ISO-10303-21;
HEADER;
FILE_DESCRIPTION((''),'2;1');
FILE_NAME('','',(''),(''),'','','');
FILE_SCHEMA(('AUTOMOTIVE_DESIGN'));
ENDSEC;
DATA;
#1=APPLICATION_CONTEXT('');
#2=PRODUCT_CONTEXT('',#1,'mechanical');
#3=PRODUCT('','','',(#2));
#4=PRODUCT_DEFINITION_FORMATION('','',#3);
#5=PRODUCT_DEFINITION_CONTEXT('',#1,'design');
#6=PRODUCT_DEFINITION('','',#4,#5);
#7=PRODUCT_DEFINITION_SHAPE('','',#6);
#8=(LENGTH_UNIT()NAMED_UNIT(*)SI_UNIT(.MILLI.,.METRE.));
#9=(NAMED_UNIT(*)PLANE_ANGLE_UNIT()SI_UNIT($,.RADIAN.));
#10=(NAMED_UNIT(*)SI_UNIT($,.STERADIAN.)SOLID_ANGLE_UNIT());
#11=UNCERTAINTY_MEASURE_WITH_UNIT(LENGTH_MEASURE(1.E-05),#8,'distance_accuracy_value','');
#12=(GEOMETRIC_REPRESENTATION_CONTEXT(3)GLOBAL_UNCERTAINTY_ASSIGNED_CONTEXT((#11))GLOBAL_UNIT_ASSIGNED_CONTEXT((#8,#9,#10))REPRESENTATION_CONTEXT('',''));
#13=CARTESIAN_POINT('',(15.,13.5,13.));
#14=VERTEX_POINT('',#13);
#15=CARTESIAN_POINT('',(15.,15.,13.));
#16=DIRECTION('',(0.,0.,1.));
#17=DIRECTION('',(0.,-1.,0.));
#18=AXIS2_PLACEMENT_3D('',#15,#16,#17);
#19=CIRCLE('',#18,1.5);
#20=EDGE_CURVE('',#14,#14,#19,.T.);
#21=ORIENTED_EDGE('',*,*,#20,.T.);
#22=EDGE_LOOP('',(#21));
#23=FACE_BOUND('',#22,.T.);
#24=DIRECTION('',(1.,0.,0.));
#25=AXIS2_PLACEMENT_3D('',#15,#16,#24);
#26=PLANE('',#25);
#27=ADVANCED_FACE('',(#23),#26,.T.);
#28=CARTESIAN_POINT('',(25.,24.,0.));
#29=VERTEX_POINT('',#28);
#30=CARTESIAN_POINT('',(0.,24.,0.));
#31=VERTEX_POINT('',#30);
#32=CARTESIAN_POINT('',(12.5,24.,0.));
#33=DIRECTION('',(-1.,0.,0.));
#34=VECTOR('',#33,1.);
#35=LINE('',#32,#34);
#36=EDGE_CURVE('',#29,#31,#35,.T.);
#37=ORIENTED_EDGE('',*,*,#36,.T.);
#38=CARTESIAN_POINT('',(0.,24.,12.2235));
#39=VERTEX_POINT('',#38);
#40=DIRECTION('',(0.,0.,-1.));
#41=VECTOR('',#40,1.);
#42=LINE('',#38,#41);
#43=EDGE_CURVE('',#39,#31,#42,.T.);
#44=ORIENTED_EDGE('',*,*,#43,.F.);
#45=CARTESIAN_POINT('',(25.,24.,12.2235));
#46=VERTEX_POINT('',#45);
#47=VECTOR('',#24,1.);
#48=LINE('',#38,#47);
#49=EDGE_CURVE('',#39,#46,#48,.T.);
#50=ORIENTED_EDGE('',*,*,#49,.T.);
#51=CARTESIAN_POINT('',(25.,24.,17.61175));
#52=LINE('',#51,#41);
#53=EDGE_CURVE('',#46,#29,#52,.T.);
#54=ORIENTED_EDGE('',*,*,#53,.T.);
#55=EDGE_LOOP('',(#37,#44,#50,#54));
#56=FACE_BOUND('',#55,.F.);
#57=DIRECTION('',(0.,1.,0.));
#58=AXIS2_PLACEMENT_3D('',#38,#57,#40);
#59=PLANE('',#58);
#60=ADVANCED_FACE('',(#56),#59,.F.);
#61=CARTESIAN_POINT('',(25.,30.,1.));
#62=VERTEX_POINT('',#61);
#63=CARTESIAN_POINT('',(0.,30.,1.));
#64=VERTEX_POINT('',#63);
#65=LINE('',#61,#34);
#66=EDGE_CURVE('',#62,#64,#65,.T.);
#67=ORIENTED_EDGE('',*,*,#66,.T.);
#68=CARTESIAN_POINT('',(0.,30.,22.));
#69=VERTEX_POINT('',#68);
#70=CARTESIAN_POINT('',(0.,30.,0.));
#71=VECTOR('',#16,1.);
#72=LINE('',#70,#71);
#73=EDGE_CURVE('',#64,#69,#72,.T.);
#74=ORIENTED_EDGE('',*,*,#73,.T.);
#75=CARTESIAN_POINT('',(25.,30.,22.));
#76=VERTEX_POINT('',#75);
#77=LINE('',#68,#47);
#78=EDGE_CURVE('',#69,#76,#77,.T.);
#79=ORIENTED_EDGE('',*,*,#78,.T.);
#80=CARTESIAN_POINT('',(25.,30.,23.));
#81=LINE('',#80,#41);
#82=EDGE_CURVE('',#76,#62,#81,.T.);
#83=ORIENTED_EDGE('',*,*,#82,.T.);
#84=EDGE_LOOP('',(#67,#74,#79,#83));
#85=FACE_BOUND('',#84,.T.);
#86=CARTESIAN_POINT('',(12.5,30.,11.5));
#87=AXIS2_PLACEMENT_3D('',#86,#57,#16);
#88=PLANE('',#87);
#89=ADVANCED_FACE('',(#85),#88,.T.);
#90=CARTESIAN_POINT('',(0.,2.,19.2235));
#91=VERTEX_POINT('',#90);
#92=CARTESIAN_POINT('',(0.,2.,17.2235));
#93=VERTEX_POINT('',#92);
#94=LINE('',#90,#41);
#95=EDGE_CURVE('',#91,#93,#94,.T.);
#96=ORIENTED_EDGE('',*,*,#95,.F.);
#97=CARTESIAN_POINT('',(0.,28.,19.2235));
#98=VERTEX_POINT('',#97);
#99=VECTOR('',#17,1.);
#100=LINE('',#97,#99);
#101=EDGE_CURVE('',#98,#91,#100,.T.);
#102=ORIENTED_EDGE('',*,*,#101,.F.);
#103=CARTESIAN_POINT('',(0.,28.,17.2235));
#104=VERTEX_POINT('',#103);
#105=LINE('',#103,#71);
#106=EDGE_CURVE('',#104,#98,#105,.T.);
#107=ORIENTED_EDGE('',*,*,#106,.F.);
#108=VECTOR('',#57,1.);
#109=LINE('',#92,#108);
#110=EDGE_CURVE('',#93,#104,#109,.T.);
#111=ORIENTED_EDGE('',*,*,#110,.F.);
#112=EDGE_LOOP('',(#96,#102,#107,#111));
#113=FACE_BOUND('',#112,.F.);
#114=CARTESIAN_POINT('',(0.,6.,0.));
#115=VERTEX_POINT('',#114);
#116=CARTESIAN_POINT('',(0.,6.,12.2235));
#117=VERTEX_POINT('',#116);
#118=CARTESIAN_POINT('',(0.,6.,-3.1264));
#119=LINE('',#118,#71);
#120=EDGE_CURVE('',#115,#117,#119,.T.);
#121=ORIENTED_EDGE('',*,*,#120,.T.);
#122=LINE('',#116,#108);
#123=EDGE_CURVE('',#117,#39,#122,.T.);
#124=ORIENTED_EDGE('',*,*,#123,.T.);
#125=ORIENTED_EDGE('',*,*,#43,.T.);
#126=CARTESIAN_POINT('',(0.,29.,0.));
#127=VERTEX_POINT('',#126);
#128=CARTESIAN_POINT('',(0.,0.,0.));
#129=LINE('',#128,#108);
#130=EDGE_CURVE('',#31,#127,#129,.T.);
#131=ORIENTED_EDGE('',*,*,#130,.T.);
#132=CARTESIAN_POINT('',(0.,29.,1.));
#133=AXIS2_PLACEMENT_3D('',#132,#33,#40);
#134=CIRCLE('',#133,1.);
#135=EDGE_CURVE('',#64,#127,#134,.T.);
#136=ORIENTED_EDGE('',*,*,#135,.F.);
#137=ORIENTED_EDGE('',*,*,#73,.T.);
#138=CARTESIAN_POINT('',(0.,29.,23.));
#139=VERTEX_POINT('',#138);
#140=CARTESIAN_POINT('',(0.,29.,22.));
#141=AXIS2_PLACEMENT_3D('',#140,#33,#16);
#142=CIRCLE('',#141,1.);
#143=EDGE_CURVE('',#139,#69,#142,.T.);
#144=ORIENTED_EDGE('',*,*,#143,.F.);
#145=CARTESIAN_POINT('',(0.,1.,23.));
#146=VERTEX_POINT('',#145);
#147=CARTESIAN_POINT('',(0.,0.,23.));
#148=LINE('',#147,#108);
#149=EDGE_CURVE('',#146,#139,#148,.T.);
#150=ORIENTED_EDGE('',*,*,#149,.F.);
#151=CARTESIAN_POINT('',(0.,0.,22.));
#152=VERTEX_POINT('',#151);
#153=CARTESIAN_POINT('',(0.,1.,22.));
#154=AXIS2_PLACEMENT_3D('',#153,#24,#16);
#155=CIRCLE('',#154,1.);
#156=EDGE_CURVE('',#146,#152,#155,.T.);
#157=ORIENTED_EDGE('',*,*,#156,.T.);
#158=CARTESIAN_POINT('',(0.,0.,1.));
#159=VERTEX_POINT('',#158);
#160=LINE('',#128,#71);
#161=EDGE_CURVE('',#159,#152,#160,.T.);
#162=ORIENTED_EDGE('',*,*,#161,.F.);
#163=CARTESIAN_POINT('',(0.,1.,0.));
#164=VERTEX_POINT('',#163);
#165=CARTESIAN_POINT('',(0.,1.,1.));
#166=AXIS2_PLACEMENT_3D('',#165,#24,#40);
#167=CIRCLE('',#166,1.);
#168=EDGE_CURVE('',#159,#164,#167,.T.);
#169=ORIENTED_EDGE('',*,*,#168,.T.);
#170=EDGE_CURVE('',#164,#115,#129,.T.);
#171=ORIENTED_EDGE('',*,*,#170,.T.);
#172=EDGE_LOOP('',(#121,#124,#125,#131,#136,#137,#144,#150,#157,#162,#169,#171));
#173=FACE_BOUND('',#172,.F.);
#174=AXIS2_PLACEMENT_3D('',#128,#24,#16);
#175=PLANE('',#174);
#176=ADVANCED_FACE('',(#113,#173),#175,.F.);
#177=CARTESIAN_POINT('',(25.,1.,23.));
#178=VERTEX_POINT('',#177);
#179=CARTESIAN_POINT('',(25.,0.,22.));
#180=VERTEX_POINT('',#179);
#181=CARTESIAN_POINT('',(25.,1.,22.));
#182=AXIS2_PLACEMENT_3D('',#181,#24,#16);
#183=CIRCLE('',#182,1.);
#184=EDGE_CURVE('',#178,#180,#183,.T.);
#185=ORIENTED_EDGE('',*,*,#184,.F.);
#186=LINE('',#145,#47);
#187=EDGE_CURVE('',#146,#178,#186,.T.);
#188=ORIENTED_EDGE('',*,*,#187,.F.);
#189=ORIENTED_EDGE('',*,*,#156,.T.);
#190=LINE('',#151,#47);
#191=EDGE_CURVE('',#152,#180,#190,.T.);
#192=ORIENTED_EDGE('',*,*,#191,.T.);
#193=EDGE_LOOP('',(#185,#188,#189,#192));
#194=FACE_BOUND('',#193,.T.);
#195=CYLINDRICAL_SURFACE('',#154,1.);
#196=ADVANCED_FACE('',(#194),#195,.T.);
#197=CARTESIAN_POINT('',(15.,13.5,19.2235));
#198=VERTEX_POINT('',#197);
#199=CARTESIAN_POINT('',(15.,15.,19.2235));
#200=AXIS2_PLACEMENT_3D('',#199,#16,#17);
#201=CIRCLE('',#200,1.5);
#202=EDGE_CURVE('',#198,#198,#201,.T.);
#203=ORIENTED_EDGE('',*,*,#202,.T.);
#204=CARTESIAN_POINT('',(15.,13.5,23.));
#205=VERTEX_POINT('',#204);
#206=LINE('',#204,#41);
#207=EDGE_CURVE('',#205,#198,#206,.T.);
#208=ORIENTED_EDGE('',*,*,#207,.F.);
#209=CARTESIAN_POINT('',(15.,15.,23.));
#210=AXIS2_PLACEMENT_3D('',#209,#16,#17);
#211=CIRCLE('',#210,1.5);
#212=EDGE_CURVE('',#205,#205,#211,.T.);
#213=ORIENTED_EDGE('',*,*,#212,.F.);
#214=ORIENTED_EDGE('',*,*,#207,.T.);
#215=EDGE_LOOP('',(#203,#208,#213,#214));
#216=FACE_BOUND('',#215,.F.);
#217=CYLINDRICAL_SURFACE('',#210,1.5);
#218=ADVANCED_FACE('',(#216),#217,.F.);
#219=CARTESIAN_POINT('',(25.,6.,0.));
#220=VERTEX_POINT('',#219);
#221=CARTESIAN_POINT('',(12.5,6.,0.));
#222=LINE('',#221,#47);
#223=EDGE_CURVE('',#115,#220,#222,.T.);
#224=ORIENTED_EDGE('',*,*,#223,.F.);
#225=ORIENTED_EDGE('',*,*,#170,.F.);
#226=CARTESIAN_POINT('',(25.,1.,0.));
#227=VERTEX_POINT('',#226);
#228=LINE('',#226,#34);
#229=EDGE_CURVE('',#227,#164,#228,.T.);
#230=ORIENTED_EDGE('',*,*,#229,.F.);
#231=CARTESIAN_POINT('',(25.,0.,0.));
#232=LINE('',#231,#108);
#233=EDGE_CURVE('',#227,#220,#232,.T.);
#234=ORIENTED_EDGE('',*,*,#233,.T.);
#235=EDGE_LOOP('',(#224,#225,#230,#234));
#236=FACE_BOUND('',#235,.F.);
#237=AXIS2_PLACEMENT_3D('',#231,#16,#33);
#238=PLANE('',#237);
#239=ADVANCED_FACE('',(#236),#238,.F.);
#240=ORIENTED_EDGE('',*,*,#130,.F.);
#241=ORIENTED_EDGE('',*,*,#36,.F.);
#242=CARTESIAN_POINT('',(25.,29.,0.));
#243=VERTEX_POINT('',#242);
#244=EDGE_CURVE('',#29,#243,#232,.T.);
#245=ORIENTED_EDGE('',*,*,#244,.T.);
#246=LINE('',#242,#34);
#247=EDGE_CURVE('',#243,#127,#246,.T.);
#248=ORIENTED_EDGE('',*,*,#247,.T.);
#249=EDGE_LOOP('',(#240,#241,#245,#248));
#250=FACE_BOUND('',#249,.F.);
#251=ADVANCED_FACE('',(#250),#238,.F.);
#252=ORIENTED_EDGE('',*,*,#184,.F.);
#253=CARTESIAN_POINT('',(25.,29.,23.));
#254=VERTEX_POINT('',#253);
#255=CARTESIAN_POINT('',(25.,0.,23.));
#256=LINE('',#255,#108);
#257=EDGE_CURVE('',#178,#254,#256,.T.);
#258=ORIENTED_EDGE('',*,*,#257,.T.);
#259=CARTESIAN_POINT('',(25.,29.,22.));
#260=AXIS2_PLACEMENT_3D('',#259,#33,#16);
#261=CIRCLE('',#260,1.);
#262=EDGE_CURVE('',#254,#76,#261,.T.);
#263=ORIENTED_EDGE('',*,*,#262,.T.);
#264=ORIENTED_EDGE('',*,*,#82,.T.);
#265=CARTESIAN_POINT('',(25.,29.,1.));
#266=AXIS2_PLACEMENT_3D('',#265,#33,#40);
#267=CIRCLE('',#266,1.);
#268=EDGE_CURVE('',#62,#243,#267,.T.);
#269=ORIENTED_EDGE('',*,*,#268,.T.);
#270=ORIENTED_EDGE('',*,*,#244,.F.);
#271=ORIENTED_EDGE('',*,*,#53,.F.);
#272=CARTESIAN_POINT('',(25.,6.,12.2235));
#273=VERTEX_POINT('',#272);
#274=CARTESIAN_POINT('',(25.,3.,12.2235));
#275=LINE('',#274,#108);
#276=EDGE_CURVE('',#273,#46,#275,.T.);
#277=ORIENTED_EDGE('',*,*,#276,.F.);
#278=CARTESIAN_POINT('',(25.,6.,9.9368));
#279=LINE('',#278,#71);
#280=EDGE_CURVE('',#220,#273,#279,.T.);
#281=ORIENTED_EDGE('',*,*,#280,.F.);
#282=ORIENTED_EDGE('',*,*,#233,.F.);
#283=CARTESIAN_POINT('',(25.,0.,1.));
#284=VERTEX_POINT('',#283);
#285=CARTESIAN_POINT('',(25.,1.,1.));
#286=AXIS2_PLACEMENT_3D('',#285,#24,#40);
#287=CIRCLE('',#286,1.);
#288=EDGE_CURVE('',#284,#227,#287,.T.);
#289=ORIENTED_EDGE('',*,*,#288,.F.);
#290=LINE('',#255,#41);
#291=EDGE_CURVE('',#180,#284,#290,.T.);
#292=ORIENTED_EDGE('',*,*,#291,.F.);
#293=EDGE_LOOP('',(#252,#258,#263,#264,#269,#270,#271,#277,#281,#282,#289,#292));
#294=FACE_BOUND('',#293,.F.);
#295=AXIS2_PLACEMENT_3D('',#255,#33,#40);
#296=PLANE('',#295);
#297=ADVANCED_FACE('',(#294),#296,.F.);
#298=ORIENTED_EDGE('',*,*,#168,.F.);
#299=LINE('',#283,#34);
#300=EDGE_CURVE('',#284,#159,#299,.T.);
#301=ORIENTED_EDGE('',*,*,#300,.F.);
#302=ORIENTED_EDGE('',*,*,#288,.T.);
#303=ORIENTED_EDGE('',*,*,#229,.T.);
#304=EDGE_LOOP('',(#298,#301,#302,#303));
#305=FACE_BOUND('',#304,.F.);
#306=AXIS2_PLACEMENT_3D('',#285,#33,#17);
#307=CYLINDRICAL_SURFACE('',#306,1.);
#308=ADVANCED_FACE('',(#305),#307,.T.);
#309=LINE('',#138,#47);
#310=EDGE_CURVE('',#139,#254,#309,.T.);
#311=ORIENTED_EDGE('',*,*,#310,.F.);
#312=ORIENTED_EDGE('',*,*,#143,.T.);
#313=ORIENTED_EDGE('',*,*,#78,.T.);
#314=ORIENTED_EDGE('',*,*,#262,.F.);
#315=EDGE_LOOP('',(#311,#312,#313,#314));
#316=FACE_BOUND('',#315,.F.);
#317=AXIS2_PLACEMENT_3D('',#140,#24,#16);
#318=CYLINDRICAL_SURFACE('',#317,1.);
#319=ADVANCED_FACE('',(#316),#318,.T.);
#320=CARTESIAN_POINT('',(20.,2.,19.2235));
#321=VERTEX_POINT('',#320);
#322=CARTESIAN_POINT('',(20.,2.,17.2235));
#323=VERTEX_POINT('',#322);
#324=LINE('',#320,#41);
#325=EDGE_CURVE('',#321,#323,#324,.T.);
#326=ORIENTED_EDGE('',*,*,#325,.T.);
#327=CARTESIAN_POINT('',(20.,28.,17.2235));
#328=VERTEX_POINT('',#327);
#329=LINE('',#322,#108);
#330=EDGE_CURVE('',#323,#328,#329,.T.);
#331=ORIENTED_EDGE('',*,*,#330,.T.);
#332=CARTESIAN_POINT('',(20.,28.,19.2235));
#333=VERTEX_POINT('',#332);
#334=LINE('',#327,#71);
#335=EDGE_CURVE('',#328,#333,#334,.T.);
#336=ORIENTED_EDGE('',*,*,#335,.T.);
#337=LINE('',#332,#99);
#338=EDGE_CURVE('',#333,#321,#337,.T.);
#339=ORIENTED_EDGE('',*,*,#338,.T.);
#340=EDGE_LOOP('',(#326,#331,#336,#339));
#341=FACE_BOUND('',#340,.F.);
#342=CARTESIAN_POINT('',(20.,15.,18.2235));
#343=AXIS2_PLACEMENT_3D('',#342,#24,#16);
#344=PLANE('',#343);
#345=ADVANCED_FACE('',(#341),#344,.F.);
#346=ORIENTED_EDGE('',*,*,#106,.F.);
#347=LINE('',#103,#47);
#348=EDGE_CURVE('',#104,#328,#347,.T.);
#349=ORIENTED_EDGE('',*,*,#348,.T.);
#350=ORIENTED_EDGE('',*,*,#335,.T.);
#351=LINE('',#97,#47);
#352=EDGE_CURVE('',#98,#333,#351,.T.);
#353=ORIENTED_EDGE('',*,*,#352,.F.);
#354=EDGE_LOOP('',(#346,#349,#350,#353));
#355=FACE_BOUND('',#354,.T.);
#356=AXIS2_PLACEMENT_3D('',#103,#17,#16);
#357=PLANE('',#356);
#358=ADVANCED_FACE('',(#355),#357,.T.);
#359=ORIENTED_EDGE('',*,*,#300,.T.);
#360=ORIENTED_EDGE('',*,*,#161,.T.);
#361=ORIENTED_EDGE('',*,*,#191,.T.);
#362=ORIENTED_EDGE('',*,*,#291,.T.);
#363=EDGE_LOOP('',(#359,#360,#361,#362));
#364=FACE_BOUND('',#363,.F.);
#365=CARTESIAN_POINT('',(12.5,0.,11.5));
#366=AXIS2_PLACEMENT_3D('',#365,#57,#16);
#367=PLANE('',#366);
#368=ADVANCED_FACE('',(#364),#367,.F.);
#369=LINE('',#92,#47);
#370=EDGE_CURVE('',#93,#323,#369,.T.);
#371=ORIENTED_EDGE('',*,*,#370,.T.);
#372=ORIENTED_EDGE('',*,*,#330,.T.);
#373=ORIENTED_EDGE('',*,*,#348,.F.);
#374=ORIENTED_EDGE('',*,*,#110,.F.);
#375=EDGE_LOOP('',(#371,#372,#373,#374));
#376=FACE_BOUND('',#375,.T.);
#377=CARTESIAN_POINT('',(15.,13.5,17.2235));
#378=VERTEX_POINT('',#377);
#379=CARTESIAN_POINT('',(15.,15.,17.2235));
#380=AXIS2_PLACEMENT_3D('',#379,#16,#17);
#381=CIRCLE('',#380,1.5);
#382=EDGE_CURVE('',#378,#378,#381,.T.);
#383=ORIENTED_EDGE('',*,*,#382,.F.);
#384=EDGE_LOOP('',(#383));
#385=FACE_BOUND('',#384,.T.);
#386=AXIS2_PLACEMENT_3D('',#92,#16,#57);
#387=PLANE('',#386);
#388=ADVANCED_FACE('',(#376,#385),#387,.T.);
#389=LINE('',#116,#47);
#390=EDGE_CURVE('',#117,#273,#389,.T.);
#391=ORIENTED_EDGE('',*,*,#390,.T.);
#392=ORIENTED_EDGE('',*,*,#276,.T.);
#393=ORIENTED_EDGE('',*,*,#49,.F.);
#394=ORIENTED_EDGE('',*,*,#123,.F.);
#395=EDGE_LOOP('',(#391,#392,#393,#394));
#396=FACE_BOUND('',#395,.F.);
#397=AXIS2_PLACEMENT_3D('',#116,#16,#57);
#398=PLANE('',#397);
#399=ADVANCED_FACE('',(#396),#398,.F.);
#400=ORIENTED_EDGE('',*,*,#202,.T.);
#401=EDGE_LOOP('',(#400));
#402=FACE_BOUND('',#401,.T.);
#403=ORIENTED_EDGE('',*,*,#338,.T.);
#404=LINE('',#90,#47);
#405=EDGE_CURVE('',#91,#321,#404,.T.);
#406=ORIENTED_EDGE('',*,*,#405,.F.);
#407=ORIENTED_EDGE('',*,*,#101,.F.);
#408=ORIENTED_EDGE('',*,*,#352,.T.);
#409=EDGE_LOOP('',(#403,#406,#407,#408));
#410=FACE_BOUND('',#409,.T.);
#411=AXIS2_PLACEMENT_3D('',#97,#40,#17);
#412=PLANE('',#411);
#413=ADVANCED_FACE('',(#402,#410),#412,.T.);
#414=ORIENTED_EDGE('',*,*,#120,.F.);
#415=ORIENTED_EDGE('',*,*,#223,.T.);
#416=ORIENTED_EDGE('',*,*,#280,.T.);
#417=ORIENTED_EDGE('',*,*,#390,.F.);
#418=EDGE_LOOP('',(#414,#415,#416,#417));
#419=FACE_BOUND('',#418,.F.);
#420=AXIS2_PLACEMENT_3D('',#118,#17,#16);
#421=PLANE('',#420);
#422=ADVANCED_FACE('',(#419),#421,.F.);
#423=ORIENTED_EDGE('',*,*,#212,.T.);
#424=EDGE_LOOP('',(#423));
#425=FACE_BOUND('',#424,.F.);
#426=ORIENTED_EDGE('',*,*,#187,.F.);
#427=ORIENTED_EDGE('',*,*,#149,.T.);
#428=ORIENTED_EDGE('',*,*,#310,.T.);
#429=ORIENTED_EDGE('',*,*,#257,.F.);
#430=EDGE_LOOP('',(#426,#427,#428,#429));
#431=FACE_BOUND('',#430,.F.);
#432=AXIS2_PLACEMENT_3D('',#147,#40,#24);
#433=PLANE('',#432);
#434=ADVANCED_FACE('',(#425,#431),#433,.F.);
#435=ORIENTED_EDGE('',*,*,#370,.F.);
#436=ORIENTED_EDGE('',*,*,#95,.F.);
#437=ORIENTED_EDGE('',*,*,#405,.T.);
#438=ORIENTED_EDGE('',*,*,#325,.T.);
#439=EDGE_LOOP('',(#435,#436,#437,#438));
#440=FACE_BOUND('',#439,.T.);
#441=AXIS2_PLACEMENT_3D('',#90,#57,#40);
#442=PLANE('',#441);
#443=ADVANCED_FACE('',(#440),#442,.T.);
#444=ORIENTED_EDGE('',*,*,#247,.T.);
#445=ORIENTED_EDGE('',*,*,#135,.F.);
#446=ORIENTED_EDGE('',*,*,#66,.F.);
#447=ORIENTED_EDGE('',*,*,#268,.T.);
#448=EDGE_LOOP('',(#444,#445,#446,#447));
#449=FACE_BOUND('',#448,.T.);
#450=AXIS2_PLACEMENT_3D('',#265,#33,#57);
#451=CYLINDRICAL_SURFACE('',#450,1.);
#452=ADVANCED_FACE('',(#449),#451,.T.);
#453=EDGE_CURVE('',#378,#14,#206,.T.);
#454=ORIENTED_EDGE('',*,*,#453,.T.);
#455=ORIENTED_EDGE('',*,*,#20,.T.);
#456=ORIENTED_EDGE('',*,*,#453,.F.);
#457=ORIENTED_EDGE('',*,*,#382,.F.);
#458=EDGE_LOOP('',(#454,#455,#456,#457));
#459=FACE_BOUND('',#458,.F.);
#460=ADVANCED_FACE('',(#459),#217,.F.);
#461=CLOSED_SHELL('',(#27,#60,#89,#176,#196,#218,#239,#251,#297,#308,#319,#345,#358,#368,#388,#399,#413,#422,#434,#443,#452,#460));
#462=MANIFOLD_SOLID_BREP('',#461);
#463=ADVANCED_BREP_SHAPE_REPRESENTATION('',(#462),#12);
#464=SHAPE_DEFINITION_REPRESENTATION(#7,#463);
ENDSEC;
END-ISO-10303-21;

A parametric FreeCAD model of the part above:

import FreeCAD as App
import Part
import Sketcher

V = App.Vector


def edges_at(feature, points):
    """Names of the edges that pass closest to the given points."""
    edges = feature.Shape.Edges
    near = lambda p: min(range(len(edges)), key=lambda i: edges[i].distToShape(Part.Vertex(*p))[0])
    return sorted({f"Edge{near(p) + 1}" for p in points})

doc = App.newDocument("Part")
body = doc.addObject("PartDesign::Body", "Body")

sketch1 = doc.addObject("Sketcher::SketchObject", "Sketch")
body.addObject(sketch1)
sketch1.AttachmentSupport = (doc.XZ_Plane, [""])
sketch1.MapMode = "FlatFace"
sketch1.addGeometry([
    Part.LineSegment(V(25, 23, 0), V(0, 23, 0)),
    Part.LineSegment(V(0, 23, 0), V(0, 0, 0)),
    Part.LineSegment(V(0, 0, 0), V(25, 0, 0)),
    Part.LineSegment(V(25, 0, 0), V(25, 23, 0)),
], False)
sketch1.addConstraint([
    Sketcher.Constraint("Coincident", 0, 2, 1, 1),
    Sketcher.Constraint("Coincident", 1, 2, 2, 1),
    Sketcher.Constraint("Coincident", 2, 2, 3, 1),
    Sketcher.Constraint("Coincident", 3, 2, 0, 1),
    Sketcher.Constraint("Horizontal", 0),
    Sketcher.Constraint("Vertical", 1),
    Sketcher.Constraint("Horizontal", 2),
    Sketcher.Constraint("Vertical", 3),
    Sketcher.Constraint("Coincident", 1, 2, -1, 1),
    Sketcher.Constraint("DistanceX", 0, 2, 0, 1, 25.0),
    Sketcher.Constraint("DistanceY", 1, 2, 1, 1, 23.0),
])
pad1 = doc.addObject("PartDesign::Pad", "Pad")
body.addObject(pad1)
pad1.Profile = sketch1
pad1.Length = 30
pad1.Reversed = True

sketch2 = doc.addObject("Sketcher::SketchObject", "Sketch001")
body.addObject(sketch2)
sketch2.AttachmentSupport = (doc.YZ_Plane, [""])
sketch2.MapMode = "FlatFace"
sketch2.addGeometry([
    Part.LineSegment(V(28, 17.2, 0), V(2, 17.2, 0)),
    Part.LineSegment(V(2, 17.2, 0), V(2, 19.2, 0)),
    Part.LineSegment(V(2, 19.2, 0), V(28, 19.2, 0)),
    Part.LineSegment(V(28, 19.2, 0), V(28, 17.2, 0)),
], False)
sketch2.addConstraint([
    Sketcher.Constraint("Coincident", 0, 2, 1, 1),
    Sketcher.Constraint("Coincident", 1, 2, 2, 1),
    Sketcher.Constraint("Coincident", 2, 2, 3, 1),
    Sketcher.Constraint("Coincident", 3, 2, 0, 1),
    Sketcher.Constraint("Horizontal", 0),
    Sketcher.Constraint("Vertical", 1),
    Sketcher.Constraint("Horizontal", 2),
    Sketcher.Constraint("Vertical", 3),
    Sketcher.Constraint("DistanceX", 0, 2, 0, 1, 26.0),
    Sketcher.Constraint("DistanceY", 1, 1, 1, 2, 2.0),
    Sketcher.Constraint("DistanceX", -1, 1, 0, 2, 2.0),
    Sketcher.Constraint("DistanceY", -1, 1, 0, 2, 17.2235),
])
pocket1 = doc.addObject("PartDesign::Pocket", "Pocket")
body.addObject(pocket1)
pocket1.Profile = sketch2
pocket1.Length = 20
pocket1.Reversed = True

sketch3 = doc.addObject("Sketcher::SketchObject", "Sketch002")
body.addObject(sketch3)
sketch3.AttachmentSupport = (doc.XY_Plane, [""])
sketch3.MapMode = "FlatFace"
sketch3.AttachmentOffset = App.Placement(V(0, 0, 23), App.Rotation())
sketch3.addGeometry(Part.Circle(V(15, 15, 0), V(0, 0, 1), 1.5), False)
sketch3.addConstraint([
    Sketcher.Constraint("Diameter", 0, 3.0),
    Sketcher.Constraint("DistanceX", -1, 1, 0, 3, 15.0),
    Sketcher.Constraint("DistanceY", -1, 1, 0, 3, 15.0),
])
pocket2 = doc.addObject("PartDesign::Pocket", "Pocket001")
body.addObject(pocket2)
pocket2.Profile = sketch3
pocket2.Length = 10

sketch4 = doc.addObject("Sketcher::SketchObject", "Sketch003")
body.addObject(sketch4)
sketch4.AttachmentSupport = (doc.YZ_Plane, [""])
sketch4.MapMode = "FlatFace"
sketch4.addGeometry([
    Part.LineSegment(V(6, -3, 0), V(6, 12, 0)),
    Part.LineSegment(V(6, 12, 0), V(24, 12, 0)),
    Part.LineSegment(V(24, 12, 0), V(24, -3, 0)),
    Part.LineSegment(V(24, -3, 0), V(6, -3, 0)),
], False)
sketch4.addConstraint([
    Sketcher.Constraint("Coincident", 0, 2, 1, 1),
    Sketcher.Constraint("Coincident", 1, 2, 2, 1),
    Sketcher.Constraint("Coincident", 2, 2, 3, 1),
    Sketcher.Constraint("Coincident", 3, 2, 0, 1),
    Sketcher.Constraint("Vertical", 0),
    Sketcher.Constraint("Horizontal", 1),
    Sketcher.Constraint("Vertical", 2),
    Sketcher.Constraint("Horizontal", 3),
    Sketcher.Constraint("DistanceX", 1, 1, 1, 2, 18.0),
    Sketcher.Constraint("DistanceX", -1, 1, 0, 2, 6.0),
    Sketcher.Constraint("DistanceY", 0, 1, 0, 2, 15.35),
    Sketcher.Constraint("DistanceY", -1, 1, 0, 2, 12.2235),
])
pocket3 = doc.addObject("PartDesign::Pocket", "Pocket002")
body.addObject(pocket3)
pocket3.Profile = sketch4
pocket3.Length = 84.6021
pocket3.Reversed = True
doc.recompute()

fillet = doc.addObject("PartDesign::Fillet", "Fillet")
body.addObject(fillet)
fillet.Base = (pocket3, edges_at(pocket3, [
    (12.5, 0, 23),
    (12.5, 0, 0),
    (12.5, 30, 23),
    (12.5, 30, 0),
]))
fillet.Radius = 1

doc.recompute()
